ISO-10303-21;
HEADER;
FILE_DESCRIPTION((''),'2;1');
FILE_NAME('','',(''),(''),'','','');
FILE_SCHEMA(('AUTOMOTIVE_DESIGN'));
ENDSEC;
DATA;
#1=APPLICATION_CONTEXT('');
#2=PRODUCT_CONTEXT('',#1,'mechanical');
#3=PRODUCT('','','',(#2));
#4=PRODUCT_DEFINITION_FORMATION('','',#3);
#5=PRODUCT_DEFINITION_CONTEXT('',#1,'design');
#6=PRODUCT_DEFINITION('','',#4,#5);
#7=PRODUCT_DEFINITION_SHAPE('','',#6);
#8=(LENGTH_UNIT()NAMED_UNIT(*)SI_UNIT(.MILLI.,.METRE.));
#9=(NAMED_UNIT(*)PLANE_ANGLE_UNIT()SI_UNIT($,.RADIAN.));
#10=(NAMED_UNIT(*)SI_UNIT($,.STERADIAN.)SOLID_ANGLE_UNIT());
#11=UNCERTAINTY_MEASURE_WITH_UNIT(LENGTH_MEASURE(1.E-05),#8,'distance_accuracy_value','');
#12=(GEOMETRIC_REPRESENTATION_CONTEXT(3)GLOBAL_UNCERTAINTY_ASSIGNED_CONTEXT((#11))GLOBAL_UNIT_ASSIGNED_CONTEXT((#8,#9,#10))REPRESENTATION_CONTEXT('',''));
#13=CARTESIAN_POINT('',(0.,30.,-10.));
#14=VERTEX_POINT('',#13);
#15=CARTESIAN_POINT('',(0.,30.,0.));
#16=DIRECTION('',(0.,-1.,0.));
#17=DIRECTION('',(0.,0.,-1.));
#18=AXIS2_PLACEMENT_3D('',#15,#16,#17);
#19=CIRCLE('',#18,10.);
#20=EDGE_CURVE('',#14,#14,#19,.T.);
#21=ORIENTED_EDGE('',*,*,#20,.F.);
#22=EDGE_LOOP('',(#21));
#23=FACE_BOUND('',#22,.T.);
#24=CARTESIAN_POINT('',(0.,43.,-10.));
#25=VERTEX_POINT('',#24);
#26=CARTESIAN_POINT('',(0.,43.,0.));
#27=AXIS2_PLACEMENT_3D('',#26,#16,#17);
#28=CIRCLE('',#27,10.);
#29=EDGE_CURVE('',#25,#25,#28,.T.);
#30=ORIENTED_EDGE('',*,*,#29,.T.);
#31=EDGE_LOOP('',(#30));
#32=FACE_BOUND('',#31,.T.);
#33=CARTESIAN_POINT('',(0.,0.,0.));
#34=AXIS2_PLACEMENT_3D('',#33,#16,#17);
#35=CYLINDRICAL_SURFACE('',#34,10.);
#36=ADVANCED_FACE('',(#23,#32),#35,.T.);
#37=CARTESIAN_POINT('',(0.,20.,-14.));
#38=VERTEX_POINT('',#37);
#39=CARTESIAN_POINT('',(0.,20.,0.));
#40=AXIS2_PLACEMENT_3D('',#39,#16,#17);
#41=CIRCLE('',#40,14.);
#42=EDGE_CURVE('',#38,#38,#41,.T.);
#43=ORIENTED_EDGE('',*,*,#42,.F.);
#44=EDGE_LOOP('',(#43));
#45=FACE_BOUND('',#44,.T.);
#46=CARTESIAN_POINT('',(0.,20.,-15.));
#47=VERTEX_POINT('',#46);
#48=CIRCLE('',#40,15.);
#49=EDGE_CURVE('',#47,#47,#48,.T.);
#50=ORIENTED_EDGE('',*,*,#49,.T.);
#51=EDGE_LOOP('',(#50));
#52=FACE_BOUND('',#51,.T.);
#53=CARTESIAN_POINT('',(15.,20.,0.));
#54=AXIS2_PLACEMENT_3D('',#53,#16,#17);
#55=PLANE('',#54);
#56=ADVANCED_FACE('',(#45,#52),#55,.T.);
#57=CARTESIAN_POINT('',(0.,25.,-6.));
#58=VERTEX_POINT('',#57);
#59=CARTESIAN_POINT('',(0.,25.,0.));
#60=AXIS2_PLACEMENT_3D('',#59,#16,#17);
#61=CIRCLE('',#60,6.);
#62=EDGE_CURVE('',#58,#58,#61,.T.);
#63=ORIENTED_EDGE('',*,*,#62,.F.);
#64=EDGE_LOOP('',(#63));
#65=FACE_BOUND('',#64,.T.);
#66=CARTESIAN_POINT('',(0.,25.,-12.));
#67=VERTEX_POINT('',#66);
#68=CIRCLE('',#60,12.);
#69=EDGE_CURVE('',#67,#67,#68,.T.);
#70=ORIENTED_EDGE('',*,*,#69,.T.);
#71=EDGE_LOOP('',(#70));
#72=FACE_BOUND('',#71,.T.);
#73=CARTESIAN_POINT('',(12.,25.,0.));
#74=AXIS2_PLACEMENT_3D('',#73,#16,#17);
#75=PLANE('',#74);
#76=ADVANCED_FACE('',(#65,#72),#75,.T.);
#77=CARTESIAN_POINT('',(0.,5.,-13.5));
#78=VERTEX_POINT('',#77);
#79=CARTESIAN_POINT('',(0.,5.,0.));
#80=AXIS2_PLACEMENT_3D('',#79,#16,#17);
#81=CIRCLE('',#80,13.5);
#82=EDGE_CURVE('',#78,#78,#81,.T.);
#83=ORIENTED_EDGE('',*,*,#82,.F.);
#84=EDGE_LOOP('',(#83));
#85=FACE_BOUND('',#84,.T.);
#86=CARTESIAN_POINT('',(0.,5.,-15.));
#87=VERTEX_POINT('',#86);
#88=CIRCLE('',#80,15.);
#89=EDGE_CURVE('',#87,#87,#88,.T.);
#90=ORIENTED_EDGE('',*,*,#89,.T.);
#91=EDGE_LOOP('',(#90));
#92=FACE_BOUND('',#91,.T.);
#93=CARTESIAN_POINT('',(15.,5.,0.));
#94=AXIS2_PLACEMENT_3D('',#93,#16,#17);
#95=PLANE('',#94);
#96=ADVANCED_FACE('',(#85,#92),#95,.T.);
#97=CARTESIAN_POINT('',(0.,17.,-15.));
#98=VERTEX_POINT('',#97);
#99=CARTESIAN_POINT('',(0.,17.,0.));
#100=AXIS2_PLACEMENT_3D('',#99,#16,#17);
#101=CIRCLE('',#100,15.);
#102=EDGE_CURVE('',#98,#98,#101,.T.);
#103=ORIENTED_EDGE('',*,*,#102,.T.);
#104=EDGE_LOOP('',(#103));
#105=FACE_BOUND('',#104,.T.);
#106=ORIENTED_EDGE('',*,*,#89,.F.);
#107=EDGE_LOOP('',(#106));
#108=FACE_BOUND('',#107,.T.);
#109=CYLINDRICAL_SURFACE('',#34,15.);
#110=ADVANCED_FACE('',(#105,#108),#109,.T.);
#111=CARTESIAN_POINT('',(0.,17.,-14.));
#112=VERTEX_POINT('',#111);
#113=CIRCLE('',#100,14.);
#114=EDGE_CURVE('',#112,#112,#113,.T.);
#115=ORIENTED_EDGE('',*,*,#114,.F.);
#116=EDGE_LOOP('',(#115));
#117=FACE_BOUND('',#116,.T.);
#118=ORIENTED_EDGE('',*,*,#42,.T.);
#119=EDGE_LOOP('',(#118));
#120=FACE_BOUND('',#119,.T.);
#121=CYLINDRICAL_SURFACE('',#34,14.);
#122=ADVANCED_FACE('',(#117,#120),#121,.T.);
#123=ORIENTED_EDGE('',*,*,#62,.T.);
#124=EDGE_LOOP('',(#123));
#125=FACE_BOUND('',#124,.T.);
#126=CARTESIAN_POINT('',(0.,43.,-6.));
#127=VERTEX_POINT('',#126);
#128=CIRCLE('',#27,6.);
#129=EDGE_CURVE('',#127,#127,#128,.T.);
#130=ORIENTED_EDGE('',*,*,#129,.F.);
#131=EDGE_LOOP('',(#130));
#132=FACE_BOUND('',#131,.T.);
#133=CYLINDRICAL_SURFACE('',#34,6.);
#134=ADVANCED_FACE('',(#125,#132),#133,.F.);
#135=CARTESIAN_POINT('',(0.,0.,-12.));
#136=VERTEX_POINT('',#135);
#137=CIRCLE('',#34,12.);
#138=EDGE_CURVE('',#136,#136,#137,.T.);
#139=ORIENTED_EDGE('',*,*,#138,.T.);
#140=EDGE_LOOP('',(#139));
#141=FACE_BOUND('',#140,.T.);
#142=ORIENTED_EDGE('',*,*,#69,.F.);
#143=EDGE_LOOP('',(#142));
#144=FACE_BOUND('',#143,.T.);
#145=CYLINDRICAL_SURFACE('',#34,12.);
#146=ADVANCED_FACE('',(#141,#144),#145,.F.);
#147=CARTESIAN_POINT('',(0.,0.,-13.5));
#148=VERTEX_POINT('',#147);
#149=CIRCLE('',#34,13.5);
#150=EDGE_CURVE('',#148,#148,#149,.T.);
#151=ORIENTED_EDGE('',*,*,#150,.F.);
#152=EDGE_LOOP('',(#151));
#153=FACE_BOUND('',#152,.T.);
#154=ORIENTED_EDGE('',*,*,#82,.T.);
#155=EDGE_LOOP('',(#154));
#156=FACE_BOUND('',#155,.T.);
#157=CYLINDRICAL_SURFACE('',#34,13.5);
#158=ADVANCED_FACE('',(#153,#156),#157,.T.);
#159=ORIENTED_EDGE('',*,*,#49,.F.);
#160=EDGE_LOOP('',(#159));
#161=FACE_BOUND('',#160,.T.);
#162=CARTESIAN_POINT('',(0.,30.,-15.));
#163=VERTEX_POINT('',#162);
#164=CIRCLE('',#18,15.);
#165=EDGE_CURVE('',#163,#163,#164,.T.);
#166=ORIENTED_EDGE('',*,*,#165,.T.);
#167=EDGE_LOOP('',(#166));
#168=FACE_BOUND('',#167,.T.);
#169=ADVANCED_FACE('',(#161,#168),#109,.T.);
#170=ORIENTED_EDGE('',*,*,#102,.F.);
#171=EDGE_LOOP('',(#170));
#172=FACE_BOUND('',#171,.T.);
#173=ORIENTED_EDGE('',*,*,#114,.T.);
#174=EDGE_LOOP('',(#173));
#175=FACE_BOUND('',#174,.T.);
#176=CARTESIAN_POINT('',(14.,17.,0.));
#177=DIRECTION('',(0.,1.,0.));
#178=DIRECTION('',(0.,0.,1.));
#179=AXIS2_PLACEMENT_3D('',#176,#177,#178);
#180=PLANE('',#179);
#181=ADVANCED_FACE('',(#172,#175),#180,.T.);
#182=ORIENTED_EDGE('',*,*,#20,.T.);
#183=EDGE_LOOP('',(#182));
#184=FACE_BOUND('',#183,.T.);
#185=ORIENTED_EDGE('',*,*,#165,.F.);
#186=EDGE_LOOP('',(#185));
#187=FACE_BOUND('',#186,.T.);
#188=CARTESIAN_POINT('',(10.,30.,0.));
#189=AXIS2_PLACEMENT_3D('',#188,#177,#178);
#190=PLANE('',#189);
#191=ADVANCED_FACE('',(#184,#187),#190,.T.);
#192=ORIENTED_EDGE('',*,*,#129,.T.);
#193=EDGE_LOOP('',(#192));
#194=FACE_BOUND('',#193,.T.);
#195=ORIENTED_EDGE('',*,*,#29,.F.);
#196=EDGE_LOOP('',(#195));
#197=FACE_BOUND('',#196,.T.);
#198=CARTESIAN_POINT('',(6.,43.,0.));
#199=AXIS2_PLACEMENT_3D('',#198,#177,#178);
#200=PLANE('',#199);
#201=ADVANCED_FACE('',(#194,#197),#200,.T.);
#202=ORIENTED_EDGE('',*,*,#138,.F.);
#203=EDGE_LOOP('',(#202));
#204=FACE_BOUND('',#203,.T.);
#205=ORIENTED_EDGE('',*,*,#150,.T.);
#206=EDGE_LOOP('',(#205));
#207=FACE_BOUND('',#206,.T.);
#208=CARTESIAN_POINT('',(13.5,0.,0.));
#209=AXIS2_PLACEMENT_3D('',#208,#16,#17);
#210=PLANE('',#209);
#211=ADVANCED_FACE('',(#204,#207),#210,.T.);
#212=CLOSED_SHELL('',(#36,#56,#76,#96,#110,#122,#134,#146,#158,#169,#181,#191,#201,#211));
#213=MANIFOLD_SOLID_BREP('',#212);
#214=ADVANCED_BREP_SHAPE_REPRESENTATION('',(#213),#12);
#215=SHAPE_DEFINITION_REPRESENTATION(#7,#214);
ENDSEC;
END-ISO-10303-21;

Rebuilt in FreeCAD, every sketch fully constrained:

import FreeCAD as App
import Part
import Sketcher

V = App.Vector
Q = App.Units.Quantity


def add_polygon(sketch, points):
    """Adds a closed chain of lines whose ends are joined by coincident constraints."""
    first, n = sketch.GeometryCount, len(points)
    for a, b in zip(points, points[1:] + points[:1]):
        sketch.addGeometry(Part.LineSegment(App.Vector(*a, 0), App.Vector(*b, 0)), False)
    for i in range(n):
        sketch.addConstraint(Sketcher.Constraint("Coincident", first + i, 2, first + (i + 1) % n, 1))

doc = App.newDocument("Part")
body = doc.addObject("PartDesign::Body", "Body")

sketch1 = body.newObject("Sketcher::SketchObject", "Sketch")
sketch1.AttachmentSupport = (doc.getObject("XY_Plane"), [""])
sketch1.MapMode = "FlatFace"
add_polygon(sketch1, [(12, 25), (12, 0), (13.5, 0), (13.5, 5), (15, 5), (15, 17), (14, 17), (14, 20), (15, 20), (15, 30), (10, 30), (10, 43), (6, 43), (6, 25)])
sketch1.addConstraint([
    Sketcher.Constraint("Vertical", 0),
    Sketcher.Constraint("Horizontal", 1),
    Sketcher.Constraint("Vertical", 2),
    Sketcher.Constraint("Horizontal", 3),
    Sketcher.Constraint("Vertical", 4),
    Sketcher.Constraint("Horizontal", 5),
    Sketcher.Constraint("Vertical", 6),
    Sketcher.Constraint("Horizontal", 7),
    Sketcher.Constraint("Vertical", 8),
    Sketcher.Constraint("Horizontal", 9),
    Sketcher.Constraint("Vertical", 10),
    Sketcher.Constraint("Horizontal", 11),
    Sketcher.Constraint("Vertical", 12),
    Sketcher.Constraint("Horizontal", 13),
    Sketcher.Constraint("PointOnObject", 0, 2, -1),
    Sketcher.Constraint("Vertical", 4, 2, 7, 2),
    Sketcher.Constraint("Equal", 1, 3),
    Sketcher.Constraint("Equal", 9, 2),
    Sketcher.Constraint("DistanceX", 5, 2, 5, 1, Q("1 mm")),
    Sketcher.Constraint("DistanceX", 9, 2, 9, 1, Q("5 mm")),
    Sketcher.Constraint("DistanceX", 11, 2, 11, 1, Q("4 mm")),
    Sketcher.Constraint("DistanceX", 13, 1, 13, 2, Q("6 mm")),
    Sketcher.Constraint("DistanceY", 0, 2, 0, 1, Q("25 mm")),
    Sketcher.Constraint("DistanceY", 4, 1, 4, 2, Q("12 mm")),
    Sketcher.Constraint("DistanceY", 6, 1, 6, 2, Q("3 mm")),
    Sketcher.Constraint("DistanceY", 8, 1, 8, 2, Q("10 mm")),
    Sketcher.Constraint("DistanceY", 10, 1, 10, 2, Q("13 mm")),
    Sketcher.Constraint("DistanceX", -1, 1, 0, 2, Q("12 mm")),
])
revolution = body.newObject("PartDesign::Revolution", "Revolution")
revolution.Profile = sketch1
revolution.ReferenceAxis = (sketch1, ["V_Axis"])
revolution.Angle = 360

doc.recompute()
